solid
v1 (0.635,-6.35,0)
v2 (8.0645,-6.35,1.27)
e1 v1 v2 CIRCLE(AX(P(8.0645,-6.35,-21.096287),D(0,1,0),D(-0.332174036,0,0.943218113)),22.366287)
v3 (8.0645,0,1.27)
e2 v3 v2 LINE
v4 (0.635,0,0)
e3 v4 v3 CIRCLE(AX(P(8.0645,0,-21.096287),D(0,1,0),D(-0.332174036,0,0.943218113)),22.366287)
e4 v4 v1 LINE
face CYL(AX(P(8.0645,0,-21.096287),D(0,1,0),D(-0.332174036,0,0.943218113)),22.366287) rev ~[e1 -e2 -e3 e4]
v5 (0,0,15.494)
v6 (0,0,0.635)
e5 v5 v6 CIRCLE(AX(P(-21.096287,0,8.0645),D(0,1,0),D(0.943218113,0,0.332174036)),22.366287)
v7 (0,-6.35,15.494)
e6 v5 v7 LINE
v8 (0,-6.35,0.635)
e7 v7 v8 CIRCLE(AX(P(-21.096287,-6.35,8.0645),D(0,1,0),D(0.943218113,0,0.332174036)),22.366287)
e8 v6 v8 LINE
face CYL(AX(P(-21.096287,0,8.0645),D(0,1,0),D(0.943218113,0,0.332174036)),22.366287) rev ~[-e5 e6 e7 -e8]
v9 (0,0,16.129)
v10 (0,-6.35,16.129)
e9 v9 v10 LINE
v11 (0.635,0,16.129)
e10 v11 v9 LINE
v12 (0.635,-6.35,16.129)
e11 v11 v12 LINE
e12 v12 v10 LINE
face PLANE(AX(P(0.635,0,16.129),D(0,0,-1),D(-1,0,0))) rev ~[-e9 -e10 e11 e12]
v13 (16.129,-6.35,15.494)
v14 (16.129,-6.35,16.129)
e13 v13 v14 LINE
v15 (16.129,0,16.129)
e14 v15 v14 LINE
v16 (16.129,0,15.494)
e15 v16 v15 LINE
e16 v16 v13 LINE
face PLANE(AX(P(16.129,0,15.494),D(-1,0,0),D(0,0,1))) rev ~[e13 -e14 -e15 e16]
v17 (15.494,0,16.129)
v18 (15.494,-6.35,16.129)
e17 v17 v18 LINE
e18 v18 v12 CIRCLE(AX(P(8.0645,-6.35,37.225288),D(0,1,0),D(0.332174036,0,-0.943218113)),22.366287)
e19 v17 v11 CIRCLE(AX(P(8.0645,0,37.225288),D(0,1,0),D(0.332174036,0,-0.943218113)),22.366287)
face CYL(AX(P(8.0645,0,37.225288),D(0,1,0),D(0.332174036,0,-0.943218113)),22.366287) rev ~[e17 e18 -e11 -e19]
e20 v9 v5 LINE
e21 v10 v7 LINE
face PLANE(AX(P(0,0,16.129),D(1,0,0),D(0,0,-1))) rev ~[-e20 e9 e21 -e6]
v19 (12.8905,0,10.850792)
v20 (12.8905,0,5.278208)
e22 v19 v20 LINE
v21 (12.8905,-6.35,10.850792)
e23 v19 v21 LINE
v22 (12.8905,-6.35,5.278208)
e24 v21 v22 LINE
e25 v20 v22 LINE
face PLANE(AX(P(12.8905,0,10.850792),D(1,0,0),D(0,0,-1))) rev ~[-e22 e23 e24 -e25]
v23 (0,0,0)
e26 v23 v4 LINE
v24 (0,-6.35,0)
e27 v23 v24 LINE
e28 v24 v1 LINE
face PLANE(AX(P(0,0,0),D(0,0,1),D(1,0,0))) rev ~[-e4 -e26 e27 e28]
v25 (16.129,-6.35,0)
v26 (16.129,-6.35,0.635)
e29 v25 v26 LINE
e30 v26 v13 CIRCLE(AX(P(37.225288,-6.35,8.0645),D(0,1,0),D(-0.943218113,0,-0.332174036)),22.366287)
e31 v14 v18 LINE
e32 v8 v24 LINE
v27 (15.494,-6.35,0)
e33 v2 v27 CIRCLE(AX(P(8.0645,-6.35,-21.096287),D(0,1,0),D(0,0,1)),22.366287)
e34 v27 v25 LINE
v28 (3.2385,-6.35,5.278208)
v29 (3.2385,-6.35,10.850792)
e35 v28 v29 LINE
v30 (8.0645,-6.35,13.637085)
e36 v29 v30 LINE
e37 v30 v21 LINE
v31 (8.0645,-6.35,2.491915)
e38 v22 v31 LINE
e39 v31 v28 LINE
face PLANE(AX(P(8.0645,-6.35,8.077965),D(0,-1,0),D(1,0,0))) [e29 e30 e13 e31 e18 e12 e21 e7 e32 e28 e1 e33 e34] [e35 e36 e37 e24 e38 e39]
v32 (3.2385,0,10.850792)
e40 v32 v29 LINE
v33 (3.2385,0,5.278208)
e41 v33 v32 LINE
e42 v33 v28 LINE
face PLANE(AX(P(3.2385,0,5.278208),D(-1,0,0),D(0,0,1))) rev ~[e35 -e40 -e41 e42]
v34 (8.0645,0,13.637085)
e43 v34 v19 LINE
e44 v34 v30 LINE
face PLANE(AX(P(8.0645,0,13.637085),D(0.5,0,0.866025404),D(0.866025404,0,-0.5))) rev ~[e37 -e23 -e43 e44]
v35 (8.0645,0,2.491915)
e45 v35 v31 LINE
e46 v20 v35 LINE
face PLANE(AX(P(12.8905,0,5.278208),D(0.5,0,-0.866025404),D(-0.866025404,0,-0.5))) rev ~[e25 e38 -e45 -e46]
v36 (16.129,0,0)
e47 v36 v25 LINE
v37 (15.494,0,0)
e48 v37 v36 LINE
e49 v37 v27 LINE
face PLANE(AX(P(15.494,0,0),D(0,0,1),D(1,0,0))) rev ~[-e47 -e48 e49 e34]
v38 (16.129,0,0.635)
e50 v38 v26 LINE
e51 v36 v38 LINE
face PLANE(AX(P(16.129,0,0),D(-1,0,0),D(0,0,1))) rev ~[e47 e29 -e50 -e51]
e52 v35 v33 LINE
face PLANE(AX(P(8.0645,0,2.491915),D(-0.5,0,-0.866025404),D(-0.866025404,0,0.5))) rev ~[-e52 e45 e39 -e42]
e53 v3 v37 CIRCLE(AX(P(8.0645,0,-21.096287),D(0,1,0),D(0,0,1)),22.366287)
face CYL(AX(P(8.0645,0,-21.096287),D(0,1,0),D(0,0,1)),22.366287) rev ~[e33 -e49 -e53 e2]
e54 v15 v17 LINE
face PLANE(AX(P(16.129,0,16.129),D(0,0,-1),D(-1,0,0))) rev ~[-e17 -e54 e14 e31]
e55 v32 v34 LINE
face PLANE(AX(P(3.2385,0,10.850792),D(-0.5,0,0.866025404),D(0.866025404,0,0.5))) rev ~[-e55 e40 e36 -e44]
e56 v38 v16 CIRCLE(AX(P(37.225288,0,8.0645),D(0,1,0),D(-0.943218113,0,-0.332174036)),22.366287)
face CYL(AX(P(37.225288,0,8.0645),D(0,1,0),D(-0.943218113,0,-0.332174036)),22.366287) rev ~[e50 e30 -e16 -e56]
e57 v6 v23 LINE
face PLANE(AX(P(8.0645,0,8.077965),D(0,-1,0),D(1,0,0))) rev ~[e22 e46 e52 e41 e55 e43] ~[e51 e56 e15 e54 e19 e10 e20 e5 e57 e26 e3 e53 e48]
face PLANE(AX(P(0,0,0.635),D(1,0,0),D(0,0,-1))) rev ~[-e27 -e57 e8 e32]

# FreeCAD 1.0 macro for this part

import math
import FreeCAD as App
import Part
import Sketcher
Q = App.Units.Quantity


def add_polygon(sketch, points):
    """Adds a closed chain of lines whose ends are joined by coincident constraints."""
    first, n = sketch.GeometryCount, len(points)
    for a, b in zip(points, points[1:] + points[:1]):
        sketch.addGeometry(Part.LineSegment(App.Vector(*a, 0), App.Vector(*b, 0)), False)
    for i in range(n):
        sketch.addConstraint(Sketcher.Constraint("Coincident", first + i, 2, first + (i + 1) % n, 1))

doc = App.newDocument("Part")
body = doc.addObject("PartDesign::Body", "Body")

# Sketch on XZ plane
sketch1 = doc.addObject("Sketcher::SketchObject", "Sketch")
body.addObject(sketch1)
sketch1.AttachmentSupport = (doc.XZ_Plane, [""])
sketch1.MapMode = "FlatFace"
sketch1.addGeometry(Part.LineSegment(App.Vector(16.1, 15.5, 0), App.Vector(16.1, 16.1, 0)), False)  # 0
sketch1.addGeometry(Part.LineSegment(App.Vector(16.1, 16.1, 0), App.Vector(15.5, 16.1, 0)), False)  # 1
sketch1.addGeometry(Part.ArcOfCircle(Part.Circle(App.Vector(8.1, 37.2, 0), App.Vector(0, 0, 1), 22.4), math.radians(-109), math.radians(-71)), False)  # 2
sketch1.addGeometry(Part.LineSegment(App.Vector(0.6, 16.1, 0), App.Vector(0, 16.1, 0)), False)  # 3
sketch1.addGeometry(Part.LineSegment(App.Vector(0, 16.1, 0), App.Vector(0, 15.5, 0)), False)  # 4
sketch1.addGeometry(Part.ArcOfCircle(Part.Circle(App.Vector(-21.1, 8.1, 0), App.Vector(0, 0, 1), 22.4), math.radians(-19), math.radians(19)), False)  # 5
sketch1.addGeometry(Part.LineSegment(App.Vector(0, 0.6, 0), App.Vector(0, 0, 0)), False)  # 6
sketch1.addGeometry(Part.LineSegment(App.Vector(0, 0, 0), App.Vector(0.6, 0, 0)), False)  # 7
sketch1.addGeometry(Part.ArcOfCircle(Part.Circle(App.Vector(8.1, -21.1, 0), App.Vector(0, 0, 1), 22.4), math.radians(90), math.radians(109.4)), False)  # 8
sketch1.addGeometry(Part.ArcOfCircle(Part.Circle(App.Vector(8.1, -21.1, 0), App.Vector(0, 0, 1), 22.4), math.radians(70.6), math.radians(90)), False)  # 9
sketch1.addGeometry(Part.LineSegment(App.Vector(15.5, 0, 0), App.Vector(16.1, 0, 0)), False)  # 10
sketch1.addGeometry(Part.LineSegment(App.Vector(16.1, 0, 0), App.Vector(16.1, 0.6, 0)), False)  # 11
sketch1.addGeometry(Part.ArcOfCircle(Part.Circle(App.Vector(37.2, 8.1, 0), App.Vector(0, 0, 1), 22.4), math.radians(161), math.radians(199)), False)  # 12
add_polygon(sketch1, [(3.2, 10.9), (8.1, 13.6), (12.9, 10.9), (12.9, 5.3), (8.1, 2.5), (3.2, 5.3)])  # lines 13-18
sketch1.addConstraint([
    Sketcher.Constraint("Coincident", 0, 2, 1, 1),
    Sketcher.Constraint("Coincident", 1, 2, 2, 2),
    Sketcher.Constraint("Coincident", 2, 1, 3, 1),
    Sketcher.Constraint("Coincident", 3, 2, 4, 1),
    Sketcher.Constraint("Coincident", 4, 2, 5, 2),
    Sketcher.Constraint("Coincident", 5, 1, 6, 1),
    Sketcher.Constraint("Coincident", 6, 2, 7, 1),
    Sketcher.Constraint("Coincident", 7, 2, 8, 2),
    Sketcher.Constraint("Tangent", 8, 1, 9, 2),
    Sketcher.Constraint("Coincident", 9, 1, 10, 1),
    Sketcher.Constraint("Coincident", 10, 2, 11, 1),
    Sketcher.Constraint("Coincident", 11, 2, 12, 2),
    Sketcher.Constraint("Coincident", 12, 1, 0, 1),
    Sketcher.Constraint("Vertical", 0),
    Sketcher.Constraint("Horizontal", 1),
    Sketcher.Constraint("Horizontal", 3),
    Sketcher.Constraint("Vertical", 4),
    Sketcher.Constraint("Vertical", 6),
    Sketcher.Constraint("Horizontal", 7),
    Sketcher.Constraint("Horizontal", 10),
    Sketcher.Constraint("Vertical", 11),
    Sketcher.Constraint("Vertical", 15),
    Sketcher.Constraint("Vertical", 18),
    Sketcher.Constraint("Coincident", 6, 2, -1, 1),
    Sketcher.Constraint("Equal", 2, 5),
    Sketcher.Constraint("Equal", 5, 8),
    Sketcher.Constraint("Equal", 8, 9),
    Sketcher.Constraint("Equal", 9, 12),
    Sketcher.Constraint("PointOnObject", 3, 2, -2),
    Sketcher.Constraint("PointOnObject", 9, 1, -1),
    Sketcher.Constraint("Parallel", 13, 16),
    Sketcher.Constraint("Parallel", 14, 17),
    Sketcher.Constraint("Horizontal", 5, 3, 12, 3),
    Sketcher.Constraint("Horizontal", 1, 2, 2, 1),
    Sketcher.Constraint("Horizontal", 5, 1, 11, 2),
    Sketcher.Constraint("Horizontal", 4, 2, 12, 1),
    Sketcher.Constraint("Horizontal", 15, 2, 17, 2),
    Sketcher.Constraint("Horizontal", 14, 2, 18, 2),
    Sketcher.Constraint("Vertical", 2, 3, 8, 3),
    Sketcher.Constraint("Vertical", 2, 1, 7, 2),
    Sketcher.Constraint("Vertical", 9, 3, 8, 1),
    Sketcher.Constraint("Vertical", 8, 1, 13, 2),
    Sketcher.Constraint("Vertical", 13, 2, 16, 2),
    Sketcher.Constraint("Equal", 1, 3),
    Sketcher.Constraint("Equal", 10, 0),
    Sketcher.Constraint("Equal", 4, 6),
    Sketcher.Constraint("Angle", 13, Q("30 deg")),
    Sketcher.Constraint("DistanceX", 1, 2, 1, 1, Q("0.025 in")),
    Sketcher.Constraint("DistanceX", -1, 1, 1, 2, Q("0.61 in")),
    Sketcher.Constraint("DistanceY", -1, 1, 4, 2, Q("0.61 in")),
    Sketcher.Constraint("DistanceY", -1, 1, 8, 1, Q("0.05 in")),
    Sketcher.Constraint("DistanceX", 13, 2, 14, 2, Q("0.19 in")),
    Sketcher.Constraint("DistanceY", 15, 2, 15, 1, 5.572585),
    Sketcher.Constraint("DistanceY", -1, 1, 13, 2, 13.637085),
])
pad1 = doc.addObject("PartDesign::Pad", "Pad")
body.addObject(pad1)
pad1.Profile = sketch1
pad1.Length = Q("0.25 in")

doc.recompute()
